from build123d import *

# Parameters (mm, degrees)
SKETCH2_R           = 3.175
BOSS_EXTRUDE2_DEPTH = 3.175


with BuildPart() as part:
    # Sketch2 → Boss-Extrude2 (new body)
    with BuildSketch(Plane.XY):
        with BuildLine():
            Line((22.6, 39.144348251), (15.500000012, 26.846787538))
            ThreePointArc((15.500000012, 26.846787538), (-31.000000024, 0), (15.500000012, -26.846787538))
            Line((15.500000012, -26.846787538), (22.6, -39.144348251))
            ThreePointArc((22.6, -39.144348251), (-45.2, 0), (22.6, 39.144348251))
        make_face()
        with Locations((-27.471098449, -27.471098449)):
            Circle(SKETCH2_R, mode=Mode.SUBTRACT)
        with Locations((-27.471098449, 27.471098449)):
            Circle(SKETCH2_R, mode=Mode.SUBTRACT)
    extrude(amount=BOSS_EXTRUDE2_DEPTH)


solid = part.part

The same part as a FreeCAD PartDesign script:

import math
import FreeCAD as App
import Part
import Sketcher
Q = App.Units.Quantity

doc = App.newDocument("Part")
body = doc.addObject("PartDesign::Body", "Body")

sketch1 = doc.addObject("Sketcher::SketchObject", "Sketch")
body.addObject(sketch1)
sketch1.AttachmentSupport = (doc.XY_Plane, [""])
sketch1.MapMode = "FlatFace"
sketch1.addGeometry(Part.LineSegment(App.Vector(15.5, 26.8, 0), App.Vector(22.6, 39.1, 0)), False)
sketch1.addGeometry(Part.ArcOfCircle(Part.Circle(App.Vector(0, 0, 0), App.Vector(0, 0, 1), 45.2), math.radians(60), math.radians(300)), False)
sketch1.addGeometry(Part.LineSegment(App.Vector(22.6, -39.1, 0), App.Vector(15.5, -26.8, 0)), False)
sketch1.addGeometry(Part.ArcOfCircle(Part.Circle(App.Vector(0, 0, 0), App.Vector(0, 0, 1), 31), math.radians(60), math.radians(300)), False)
sketch1.addGeometry(Part.Circle(App.Vector(-27.5, -27.5, 0), App.Vector(0, 0, 1), 3.2), False)
sketch1.addGeometry(Part.Circle(App.Vector(-27.5, 27.5, 0), App.Vector(0, 0, 1), 3.2), False)
sketch1.addConstraint(Sketcher.Constraint("Coincident", 0, 2, 1, 1))
sketch1.addConstraint(Sketcher.Constraint("Coincident", 1, 2, 2, 1))
sketch1.addConstraint(Sketcher.Constraint("Coincident", 2, 2, 3, 2))
sketch1.addConstraint(Sketcher.Constraint("Coincident", 3, 1, 0, 1))
sketch1.addConstraint(Sketcher.Constraint("Coincident", 1, 3, -1, 1))
sketch1.addConstraint(Sketcher.Constraint("Coincident", 3, 3, -1, 1))
sketch1.addConstraint(Sketcher.Constraint("Equal", 4, 5))
sketch1.addConstraint(Sketcher.Constraint("Symmetric", 4, 3, 5, 3, -1))
sketch1.addConstraint(Sketcher.Constraint("Vertical", 0, 2, 1, 2))
sketch1.addConstraint(Sketcher.Constraint("Vertical", 2, 2, 3, 1))
sketch1.addConstraint(Sketcher.Constraint("Radius", 3, Q("31 mm")))
sketch1.addConstraint(Sketcher.Constraint("Radius", 1, Q("45.2 mm")))
sketch1.addConstraint(Sketcher.Constraint("Diameter", 4, Q("6.35 mm")))
sketch1.addConstraint(Sketcher.Constraint("Angle", 0, Q("60 deg")))
sketch1.addConstraint(Sketcher.Constraint("DistanceX", -1, 1, 0, 2, Q("22.6 mm")))
sketch1.addConstraint(Sketcher.Constraint("DistanceX", 4, 3, -1, 1, Q("27.471098 mm")))
sketch1.addConstraint(Sketcher.Constraint("DistanceY", 4, 3, -1, 1, Q("27.471098 mm")))
pad1 = doc.addObject("PartDesign::Pad", "Pad")
body.addObject(pad1)
pad1.Profile = sketch1
pad1.Length = 3.175

doc.recompute()
